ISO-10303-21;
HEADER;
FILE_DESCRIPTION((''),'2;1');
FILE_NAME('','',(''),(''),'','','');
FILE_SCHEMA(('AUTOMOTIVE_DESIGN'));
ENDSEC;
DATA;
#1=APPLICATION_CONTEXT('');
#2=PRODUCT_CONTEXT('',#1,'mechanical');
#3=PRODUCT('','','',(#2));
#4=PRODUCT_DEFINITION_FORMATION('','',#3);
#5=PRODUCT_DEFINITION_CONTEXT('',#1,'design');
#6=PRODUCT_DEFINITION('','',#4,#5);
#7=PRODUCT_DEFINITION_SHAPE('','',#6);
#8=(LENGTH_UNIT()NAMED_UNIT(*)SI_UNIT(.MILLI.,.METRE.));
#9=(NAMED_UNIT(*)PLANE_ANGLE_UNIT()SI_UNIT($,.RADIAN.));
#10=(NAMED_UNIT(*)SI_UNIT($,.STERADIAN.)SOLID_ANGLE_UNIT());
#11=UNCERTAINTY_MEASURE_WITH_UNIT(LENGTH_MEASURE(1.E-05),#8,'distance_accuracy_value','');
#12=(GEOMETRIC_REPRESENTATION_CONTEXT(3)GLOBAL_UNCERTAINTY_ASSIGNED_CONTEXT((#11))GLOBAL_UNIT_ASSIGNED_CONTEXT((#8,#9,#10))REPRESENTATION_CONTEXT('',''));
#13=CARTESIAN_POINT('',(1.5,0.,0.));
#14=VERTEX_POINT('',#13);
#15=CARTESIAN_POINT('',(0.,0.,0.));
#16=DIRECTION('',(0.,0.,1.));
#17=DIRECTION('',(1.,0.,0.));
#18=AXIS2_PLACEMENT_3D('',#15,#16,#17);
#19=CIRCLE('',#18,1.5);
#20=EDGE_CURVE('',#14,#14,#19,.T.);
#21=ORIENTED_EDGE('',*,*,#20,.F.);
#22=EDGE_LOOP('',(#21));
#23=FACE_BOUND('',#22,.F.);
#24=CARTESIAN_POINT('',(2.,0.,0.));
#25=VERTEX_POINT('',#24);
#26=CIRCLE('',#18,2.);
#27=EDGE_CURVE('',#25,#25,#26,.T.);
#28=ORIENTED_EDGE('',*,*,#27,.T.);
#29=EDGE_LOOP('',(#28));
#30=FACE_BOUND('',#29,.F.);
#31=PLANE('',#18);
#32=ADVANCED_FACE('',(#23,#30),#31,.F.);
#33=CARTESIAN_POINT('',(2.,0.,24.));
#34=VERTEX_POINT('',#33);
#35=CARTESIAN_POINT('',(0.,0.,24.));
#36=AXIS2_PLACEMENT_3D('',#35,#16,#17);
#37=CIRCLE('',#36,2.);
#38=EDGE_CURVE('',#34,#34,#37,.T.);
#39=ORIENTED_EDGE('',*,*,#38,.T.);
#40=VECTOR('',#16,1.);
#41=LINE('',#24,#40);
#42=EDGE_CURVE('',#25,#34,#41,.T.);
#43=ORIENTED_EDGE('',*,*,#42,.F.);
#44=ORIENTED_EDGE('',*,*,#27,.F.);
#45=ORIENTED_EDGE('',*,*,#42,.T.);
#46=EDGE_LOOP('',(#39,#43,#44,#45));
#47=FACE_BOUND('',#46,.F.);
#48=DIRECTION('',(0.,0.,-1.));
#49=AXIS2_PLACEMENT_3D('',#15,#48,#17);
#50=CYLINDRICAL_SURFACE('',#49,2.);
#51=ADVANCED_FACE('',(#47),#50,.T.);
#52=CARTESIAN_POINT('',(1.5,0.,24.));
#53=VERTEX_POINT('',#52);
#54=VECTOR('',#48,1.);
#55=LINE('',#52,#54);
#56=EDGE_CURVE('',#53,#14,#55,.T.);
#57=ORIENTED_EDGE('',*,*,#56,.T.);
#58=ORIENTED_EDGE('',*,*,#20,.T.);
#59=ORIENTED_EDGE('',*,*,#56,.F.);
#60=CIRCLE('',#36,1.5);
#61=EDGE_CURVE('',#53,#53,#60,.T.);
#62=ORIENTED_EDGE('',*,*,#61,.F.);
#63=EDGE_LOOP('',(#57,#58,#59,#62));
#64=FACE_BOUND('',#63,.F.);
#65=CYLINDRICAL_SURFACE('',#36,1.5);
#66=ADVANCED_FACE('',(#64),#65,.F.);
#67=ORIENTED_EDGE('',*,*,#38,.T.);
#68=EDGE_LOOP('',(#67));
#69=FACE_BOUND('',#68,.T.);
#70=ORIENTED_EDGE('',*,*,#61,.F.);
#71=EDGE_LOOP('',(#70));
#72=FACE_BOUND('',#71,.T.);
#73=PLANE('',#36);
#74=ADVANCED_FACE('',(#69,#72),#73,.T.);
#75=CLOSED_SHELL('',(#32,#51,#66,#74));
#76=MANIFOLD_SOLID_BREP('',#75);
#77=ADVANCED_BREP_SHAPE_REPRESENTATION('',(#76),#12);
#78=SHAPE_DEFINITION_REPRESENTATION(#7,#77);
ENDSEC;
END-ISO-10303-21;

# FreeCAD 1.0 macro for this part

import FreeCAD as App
import Part
import Sketcher
from FreeCAD import Vector

doc = App.newDocument("Part")
body = doc.addObject("PartDesign::Body", "Body")

# Sketch on XY plane
sketch1 = body.newObject("Sketcher::SketchObject", "Sketch")
sketch1.AttachmentSupport = (doc.getObject("XY_Plane"), [""])
sketch1.MapMode = "FlatFace"
sketch1.addGeometry(Part.Circle(Vector(0, 0, 0), Vector(0, 0, 1), 2), False)
sketch1.addConstraint([
    Sketcher.Constraint("Coincident", 0, 3, -1, 1),
    Sketcher.Constraint("Diameter", 0, 4.0),
])
pad1 = body.newObject("PartDesign::Pad", "Pad")
pad1.Profile = sketch1
pad1.Length = 24

# Sketch on XY plane
sketch2 = body.newObject("Sketcher::SketchObject", "Sketch001")
sketch2.AttachmentSupport = (doc.getObject("XY_Plane"), [""])
sketch2.MapMode = "FlatFace"
sketch2.AttachmentOffset = App.Placement(Vector(0, 0, 24), App.Rotation())
sketch2.addGeometry(Part.Circle(Vector(0, 0, 0), Vector(0, 0, 1), 1.5), False)
sketch2.addConstraint([
    Sketcher.Constraint("Coincident", 0, 3, -1, 1),
    Sketcher.Constraint("Diameter", 0, 3.0),
])
pocket1 = body.newObject("PartDesign::Pocket", "Pocket")
pocket1.Profile = sketch2
pocket1.Length = 24

doc.recompute()
